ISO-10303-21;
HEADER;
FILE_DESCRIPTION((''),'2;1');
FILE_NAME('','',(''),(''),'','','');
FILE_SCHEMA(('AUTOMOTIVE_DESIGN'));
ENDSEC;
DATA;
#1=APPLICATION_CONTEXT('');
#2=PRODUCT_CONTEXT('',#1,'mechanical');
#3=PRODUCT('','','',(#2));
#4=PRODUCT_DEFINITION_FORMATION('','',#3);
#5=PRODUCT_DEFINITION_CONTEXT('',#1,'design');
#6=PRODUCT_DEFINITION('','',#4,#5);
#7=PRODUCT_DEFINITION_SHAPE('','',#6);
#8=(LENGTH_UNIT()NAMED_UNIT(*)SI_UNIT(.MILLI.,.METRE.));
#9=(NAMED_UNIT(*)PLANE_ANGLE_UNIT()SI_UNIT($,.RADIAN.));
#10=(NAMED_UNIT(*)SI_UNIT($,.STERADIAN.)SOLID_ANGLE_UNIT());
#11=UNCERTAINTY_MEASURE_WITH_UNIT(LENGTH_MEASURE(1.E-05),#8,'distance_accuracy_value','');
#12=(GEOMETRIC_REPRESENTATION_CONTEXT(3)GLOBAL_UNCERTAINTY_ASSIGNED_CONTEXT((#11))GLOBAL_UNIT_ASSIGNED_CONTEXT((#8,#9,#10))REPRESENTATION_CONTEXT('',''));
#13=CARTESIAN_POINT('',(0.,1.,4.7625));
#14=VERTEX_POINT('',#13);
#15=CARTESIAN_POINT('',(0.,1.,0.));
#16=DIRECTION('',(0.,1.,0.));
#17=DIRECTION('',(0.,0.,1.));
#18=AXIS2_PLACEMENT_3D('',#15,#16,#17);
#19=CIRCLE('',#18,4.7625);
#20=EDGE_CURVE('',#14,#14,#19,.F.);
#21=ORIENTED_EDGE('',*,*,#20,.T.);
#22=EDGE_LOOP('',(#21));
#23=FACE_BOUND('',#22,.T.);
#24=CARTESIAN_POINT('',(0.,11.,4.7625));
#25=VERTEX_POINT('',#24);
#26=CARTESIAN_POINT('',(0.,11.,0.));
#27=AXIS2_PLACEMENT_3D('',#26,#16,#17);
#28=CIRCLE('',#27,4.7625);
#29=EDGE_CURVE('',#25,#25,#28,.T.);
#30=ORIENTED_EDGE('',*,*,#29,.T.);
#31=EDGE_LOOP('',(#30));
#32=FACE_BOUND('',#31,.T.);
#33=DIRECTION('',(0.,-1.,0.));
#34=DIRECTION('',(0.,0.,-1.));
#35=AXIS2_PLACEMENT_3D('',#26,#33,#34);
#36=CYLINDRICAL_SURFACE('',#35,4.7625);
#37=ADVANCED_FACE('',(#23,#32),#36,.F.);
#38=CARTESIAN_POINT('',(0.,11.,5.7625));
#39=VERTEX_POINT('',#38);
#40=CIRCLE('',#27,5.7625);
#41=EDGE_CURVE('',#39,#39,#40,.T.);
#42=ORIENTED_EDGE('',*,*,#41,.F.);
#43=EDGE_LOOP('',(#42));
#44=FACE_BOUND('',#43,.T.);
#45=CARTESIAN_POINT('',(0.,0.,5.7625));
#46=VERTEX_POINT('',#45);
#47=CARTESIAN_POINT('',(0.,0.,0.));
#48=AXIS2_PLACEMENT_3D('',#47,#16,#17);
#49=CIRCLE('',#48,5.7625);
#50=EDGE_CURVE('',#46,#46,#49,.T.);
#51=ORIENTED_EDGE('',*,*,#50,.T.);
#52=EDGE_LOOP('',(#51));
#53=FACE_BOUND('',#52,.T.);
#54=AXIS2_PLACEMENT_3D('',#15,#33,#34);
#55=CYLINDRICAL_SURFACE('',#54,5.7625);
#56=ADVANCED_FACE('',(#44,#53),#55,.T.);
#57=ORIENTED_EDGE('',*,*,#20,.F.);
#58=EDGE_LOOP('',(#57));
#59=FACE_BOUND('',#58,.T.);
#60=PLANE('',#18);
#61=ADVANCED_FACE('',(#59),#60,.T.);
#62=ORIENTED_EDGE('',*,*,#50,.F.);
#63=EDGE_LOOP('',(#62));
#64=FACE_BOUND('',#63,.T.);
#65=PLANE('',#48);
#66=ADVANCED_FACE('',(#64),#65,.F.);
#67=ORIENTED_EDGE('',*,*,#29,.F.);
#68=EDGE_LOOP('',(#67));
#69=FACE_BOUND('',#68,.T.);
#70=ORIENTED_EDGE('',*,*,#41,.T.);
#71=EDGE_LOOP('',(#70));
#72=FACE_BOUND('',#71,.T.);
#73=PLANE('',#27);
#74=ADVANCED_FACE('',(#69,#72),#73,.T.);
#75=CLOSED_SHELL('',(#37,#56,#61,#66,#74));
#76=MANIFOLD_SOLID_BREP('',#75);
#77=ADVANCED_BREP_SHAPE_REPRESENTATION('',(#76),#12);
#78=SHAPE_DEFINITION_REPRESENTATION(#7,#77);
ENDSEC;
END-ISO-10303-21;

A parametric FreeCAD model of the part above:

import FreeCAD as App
import Part
import Sketcher

doc = App.newDocument("Part")
body = doc.addObject("PartDesign::Body", "Body")

sketch1 = body.newObject("Sketcher::SketchObject", "Sketch")
sketch1.AttachmentSupport = (doc.getObject("XZ_Plane"), [""])
sketch1.MapMode = "FlatFace"
sketch1.addGeometry(Part.Circle(App.Vector(0, 0, 0), App.Vector(0, 0, 1), 5.7625), False)
sketch1.addConstraint([
    Sketcher.Constraint("Coincident", 0, 3, -1, 1),
    Sketcher.Constraint("Diameter", 0, 11.525),
])
pad1 = body.newObject("PartDesign::Pad", "Pad")
pad1.Profile = sketch1
pad1.Length = 1
pad1.Reversed = True

sketch2 = body.newObject("Sketcher::SketchObject", "Sketch001")
sketch2.AttachmentSupport = (doc.getObject("XZ_Plane"), [""])
sketch2.MapMode = "FlatFace"
sketch2.AttachmentOffset = App.Placement(App.Vector(0, 0, -1), App.Rotation())
sketch2.addGeometry([
    Part.Circle(App.Vector(0, 0, 0), App.Vector(0, 0, 1), 5.7625),
    Part.Circle(App.Vector(0, 0, 0), App.Vector(0, 0, 1), 4.7625),
], False)
sketch2.addConstraint([
    Sketcher.Constraint("Coincident", 0, 3, -1, 1),
    Sketcher.Constraint("Coincident", 1, 3, -1, 1),
    Sketcher.Constraint("Diameter", 0, 11.525),
    Sketcher.Constraint("Diameter", 1, 9.525),
])
pad2 = body.newObject("PartDesign::Pad", "Pad001")
pad2.Profile = sketch2
pad2.Length = 10
pad2.Reversed = True

doc.recompute()
